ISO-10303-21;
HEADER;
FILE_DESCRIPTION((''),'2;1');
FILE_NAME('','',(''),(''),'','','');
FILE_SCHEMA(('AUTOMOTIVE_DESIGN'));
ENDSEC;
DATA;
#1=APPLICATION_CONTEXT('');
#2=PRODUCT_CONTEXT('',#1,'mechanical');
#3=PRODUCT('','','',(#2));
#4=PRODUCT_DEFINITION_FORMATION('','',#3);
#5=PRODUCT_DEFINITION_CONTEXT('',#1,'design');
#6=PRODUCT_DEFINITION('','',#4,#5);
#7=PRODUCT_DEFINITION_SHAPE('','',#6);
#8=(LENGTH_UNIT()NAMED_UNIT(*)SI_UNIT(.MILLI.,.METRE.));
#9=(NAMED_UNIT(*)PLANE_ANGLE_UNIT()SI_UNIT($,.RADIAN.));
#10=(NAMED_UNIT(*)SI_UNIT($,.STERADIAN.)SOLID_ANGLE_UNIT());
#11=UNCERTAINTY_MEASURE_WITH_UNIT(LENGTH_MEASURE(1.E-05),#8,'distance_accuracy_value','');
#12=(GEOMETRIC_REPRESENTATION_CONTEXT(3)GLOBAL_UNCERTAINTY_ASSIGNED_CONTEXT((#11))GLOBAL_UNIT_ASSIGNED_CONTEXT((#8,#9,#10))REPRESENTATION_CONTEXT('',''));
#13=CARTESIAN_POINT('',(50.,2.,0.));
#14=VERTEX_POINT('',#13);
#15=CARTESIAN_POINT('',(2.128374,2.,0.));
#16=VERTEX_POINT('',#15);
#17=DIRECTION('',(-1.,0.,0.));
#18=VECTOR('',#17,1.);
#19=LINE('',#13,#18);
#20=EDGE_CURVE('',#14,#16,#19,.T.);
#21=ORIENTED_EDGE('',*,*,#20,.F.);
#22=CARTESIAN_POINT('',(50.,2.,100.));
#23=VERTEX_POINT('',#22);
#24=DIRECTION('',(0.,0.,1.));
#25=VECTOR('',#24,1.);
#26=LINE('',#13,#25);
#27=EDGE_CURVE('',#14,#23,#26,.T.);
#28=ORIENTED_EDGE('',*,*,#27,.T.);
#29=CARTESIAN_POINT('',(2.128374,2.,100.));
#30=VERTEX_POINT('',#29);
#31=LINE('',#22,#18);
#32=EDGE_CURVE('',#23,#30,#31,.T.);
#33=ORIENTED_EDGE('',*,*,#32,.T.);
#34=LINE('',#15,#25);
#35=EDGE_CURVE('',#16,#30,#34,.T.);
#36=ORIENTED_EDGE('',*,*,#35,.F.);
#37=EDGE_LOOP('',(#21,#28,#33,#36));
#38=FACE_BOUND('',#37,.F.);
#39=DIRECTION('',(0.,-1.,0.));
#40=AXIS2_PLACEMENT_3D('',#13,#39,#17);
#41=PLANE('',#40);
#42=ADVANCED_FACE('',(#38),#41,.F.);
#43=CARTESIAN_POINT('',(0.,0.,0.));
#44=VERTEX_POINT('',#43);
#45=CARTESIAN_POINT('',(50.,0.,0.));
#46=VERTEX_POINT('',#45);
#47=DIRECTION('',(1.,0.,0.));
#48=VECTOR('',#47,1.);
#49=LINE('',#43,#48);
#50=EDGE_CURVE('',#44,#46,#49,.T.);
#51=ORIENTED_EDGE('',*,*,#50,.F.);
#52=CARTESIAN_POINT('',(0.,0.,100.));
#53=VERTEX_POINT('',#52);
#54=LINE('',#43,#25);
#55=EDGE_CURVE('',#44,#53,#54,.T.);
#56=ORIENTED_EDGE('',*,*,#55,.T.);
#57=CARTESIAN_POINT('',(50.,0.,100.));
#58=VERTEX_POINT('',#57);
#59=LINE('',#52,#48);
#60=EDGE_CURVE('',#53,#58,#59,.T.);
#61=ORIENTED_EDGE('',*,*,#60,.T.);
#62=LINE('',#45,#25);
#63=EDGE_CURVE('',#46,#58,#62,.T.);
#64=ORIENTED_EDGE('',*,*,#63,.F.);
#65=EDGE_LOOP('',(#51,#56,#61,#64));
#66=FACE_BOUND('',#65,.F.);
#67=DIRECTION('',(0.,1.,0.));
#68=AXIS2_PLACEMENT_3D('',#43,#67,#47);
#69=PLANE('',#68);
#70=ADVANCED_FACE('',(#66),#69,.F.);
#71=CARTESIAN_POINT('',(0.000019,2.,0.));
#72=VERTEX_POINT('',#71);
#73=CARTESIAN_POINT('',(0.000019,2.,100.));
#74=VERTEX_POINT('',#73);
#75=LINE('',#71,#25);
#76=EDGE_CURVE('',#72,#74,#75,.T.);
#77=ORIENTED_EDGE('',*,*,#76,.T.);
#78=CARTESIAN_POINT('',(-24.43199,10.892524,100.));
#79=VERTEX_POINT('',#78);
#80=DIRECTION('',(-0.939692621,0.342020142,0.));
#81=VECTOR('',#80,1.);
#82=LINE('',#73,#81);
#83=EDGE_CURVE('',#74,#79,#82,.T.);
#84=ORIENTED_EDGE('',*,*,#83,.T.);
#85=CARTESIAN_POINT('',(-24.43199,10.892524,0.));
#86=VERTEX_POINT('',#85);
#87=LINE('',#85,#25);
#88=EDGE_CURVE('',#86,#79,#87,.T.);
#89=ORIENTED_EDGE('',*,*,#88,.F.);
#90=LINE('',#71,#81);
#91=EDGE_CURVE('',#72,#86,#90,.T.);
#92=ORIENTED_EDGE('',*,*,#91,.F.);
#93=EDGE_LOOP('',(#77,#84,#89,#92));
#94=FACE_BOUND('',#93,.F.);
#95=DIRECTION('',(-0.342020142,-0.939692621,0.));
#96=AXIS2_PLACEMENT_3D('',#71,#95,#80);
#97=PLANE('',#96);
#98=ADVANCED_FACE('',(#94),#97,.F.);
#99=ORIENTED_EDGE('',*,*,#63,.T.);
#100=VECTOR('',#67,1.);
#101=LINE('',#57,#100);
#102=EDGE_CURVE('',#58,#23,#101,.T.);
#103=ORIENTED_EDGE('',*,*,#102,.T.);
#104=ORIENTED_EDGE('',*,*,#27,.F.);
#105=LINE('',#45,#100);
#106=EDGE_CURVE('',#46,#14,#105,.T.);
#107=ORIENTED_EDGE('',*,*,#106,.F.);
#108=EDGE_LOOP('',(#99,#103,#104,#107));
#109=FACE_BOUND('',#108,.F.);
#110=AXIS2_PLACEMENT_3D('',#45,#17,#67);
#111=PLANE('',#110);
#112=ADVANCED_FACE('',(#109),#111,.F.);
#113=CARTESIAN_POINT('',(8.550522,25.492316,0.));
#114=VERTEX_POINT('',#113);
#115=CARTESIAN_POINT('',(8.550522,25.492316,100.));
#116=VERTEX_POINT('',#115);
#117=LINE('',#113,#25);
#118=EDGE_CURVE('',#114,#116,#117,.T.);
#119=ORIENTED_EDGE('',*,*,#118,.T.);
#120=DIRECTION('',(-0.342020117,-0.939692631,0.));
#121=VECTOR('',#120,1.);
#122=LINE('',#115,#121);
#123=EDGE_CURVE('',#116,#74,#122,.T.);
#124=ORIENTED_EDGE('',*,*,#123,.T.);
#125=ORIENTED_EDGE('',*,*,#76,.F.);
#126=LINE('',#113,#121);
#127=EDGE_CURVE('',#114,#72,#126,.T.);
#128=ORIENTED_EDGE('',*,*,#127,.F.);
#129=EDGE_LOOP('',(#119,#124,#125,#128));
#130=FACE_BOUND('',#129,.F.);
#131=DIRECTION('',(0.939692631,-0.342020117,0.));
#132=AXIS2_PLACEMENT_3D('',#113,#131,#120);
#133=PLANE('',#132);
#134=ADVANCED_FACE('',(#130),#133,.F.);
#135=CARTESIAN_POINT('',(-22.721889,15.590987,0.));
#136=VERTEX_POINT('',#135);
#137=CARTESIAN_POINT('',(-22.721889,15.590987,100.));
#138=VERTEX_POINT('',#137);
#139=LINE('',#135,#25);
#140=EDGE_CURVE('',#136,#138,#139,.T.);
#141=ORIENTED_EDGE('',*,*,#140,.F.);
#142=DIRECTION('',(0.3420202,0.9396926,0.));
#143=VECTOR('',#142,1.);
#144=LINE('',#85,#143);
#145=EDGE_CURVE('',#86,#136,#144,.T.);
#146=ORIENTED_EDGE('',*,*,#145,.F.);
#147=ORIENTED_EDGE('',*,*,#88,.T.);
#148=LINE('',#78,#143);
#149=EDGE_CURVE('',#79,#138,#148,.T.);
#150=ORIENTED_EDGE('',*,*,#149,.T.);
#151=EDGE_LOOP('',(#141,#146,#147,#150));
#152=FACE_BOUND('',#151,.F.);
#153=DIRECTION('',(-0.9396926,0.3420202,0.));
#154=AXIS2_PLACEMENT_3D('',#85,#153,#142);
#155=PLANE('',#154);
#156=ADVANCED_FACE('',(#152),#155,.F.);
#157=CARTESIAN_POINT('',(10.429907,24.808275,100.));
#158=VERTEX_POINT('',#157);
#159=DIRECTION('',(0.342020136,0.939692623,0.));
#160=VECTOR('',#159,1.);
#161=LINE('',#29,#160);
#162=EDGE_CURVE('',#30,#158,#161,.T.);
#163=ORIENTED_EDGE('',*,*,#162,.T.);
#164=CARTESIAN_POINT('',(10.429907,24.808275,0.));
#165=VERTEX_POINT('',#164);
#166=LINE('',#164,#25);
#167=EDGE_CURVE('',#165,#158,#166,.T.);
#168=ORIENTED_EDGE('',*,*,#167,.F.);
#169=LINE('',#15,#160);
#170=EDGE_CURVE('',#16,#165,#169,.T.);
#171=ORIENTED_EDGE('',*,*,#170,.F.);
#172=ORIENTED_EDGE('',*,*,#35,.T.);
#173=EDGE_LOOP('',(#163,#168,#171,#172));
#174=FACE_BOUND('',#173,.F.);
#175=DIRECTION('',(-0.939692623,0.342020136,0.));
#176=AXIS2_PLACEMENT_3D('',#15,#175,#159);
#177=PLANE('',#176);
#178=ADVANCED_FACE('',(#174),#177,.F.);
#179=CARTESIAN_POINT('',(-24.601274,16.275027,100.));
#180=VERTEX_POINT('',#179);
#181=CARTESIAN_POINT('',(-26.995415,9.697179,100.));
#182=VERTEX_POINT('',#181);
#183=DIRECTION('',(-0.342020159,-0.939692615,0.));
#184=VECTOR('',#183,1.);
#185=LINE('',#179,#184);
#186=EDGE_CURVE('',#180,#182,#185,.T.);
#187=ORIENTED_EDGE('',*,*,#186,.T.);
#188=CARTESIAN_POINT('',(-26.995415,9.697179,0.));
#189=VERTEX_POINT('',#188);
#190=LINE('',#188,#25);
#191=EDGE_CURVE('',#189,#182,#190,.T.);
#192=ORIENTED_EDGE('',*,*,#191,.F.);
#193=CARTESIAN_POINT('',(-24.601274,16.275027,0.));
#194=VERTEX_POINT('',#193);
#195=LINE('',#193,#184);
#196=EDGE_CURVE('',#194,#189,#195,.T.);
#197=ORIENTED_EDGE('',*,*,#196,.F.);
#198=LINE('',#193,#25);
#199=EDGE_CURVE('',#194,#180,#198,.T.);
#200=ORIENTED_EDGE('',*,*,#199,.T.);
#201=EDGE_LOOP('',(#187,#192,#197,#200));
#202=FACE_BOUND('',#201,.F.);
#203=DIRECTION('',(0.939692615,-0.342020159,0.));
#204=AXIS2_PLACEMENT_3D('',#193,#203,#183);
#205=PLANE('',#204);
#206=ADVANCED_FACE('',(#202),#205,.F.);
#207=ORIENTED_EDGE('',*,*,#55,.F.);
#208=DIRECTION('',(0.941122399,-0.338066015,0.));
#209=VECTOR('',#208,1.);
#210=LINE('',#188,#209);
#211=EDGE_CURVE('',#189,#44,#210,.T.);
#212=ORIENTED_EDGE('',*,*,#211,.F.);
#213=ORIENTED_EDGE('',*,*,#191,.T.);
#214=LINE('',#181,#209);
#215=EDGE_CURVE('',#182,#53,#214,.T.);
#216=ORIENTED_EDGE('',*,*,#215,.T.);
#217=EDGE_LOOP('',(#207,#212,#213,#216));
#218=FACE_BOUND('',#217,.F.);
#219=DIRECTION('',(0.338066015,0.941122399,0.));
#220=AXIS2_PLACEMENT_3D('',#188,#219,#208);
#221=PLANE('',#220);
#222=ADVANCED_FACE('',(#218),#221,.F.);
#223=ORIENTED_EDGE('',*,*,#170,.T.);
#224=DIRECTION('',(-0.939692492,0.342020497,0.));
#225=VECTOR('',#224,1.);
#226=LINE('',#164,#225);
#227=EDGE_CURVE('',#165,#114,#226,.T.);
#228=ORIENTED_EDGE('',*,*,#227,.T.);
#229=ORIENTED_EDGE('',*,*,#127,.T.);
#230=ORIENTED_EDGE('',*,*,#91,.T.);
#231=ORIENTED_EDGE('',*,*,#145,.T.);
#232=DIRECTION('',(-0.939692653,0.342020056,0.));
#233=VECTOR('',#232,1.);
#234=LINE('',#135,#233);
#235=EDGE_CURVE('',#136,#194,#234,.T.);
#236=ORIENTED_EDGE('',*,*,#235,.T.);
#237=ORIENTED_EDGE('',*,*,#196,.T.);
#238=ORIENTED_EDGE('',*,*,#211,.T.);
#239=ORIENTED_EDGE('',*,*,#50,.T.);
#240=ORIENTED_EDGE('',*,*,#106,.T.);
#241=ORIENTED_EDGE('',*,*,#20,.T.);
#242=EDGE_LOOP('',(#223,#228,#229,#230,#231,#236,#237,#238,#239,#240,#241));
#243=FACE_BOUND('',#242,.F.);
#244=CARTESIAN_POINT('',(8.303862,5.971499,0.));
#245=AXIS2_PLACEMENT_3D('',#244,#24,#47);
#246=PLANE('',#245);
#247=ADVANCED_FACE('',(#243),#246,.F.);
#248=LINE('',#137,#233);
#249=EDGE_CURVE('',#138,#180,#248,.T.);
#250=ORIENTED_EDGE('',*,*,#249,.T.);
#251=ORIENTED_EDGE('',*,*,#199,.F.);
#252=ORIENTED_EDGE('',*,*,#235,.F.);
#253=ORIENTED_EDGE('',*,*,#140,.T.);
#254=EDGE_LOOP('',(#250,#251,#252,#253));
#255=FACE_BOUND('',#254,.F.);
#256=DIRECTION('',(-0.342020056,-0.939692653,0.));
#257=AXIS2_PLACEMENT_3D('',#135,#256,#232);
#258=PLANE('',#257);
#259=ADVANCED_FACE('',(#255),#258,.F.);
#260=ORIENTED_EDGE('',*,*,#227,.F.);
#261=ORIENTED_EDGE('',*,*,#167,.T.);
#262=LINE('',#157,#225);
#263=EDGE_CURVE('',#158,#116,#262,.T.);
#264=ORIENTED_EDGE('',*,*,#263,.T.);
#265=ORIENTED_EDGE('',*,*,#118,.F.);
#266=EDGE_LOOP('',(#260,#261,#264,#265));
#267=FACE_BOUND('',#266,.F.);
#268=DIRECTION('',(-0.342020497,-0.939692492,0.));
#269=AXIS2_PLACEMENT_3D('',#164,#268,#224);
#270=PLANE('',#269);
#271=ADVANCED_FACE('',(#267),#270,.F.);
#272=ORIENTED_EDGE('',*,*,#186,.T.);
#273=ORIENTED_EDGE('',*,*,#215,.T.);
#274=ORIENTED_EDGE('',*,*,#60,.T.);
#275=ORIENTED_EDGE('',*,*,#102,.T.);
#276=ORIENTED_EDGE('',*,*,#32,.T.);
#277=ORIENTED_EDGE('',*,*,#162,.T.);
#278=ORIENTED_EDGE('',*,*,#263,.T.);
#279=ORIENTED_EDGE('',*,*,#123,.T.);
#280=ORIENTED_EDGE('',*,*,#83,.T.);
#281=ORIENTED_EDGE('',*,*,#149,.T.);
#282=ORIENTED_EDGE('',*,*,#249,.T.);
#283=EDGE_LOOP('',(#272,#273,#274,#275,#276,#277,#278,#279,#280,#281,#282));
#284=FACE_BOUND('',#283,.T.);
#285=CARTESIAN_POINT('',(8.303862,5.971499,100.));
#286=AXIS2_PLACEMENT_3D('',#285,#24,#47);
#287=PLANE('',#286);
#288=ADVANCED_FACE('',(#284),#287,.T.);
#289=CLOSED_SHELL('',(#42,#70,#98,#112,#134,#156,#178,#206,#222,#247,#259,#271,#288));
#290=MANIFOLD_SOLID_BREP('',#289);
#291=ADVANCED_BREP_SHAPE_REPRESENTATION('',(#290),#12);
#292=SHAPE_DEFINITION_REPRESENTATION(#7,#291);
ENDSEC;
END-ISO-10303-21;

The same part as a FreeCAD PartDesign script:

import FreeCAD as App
import Part
import Sketcher

V = App.Vector
Q = App.Units.Quantity


def add_polygon(sketch, points):
    """Adds a closed chain of lines whose ends are joined by coincident constraints."""
    first, n = sketch.GeometryCount, len(points)
    for a, b in zip(points, points[1:] + points[:1]):
        sketch.addGeometry(Part.LineSegment(App.Vector(*a, 0), App.Vector(*b, 0)), False)
    for i in range(n):
        sketch.addConstraint(Sketcher.Constraint("Coincident", first + i, 2, first + (i + 1) % n, 1))

doc = App.newDocument("Part")
body = doc.addObject("PartDesign::Body", "Body")

# Sketch on XY plane
sketch1 = body.newObject("Sketcher::SketchObject", "Sketch")
sketch1.AttachmentSupport = (doc.getObject("XY_Plane"), [""])
sketch1.MapMode = "FlatFace"
add_polygon(sketch1, [(0, 0), (50, 0), (50, 2), (2.1, 2), (10.4, 24.8), (8.6, 25.5), (0, 2), (-24.4, 10.9), (-22.7, 15.6), (-24.6, 16.3), (-27, 9.7)])  # lines 0-10
sketch1.addConstraint([
    Sketcher.Constraint("Horizontal", 0),
    Sketcher.Constraint("Vertical", 1),
    Sketcher.Constraint("Horizontal", 2),
    Sketcher.Constraint("Coincident", 10, 2, -1, 1),
    Sketcher.Constraint("Perpendicular", 3, 4),
    Sketcher.Constraint("Perpendicular", 4, 5),
    Sketcher.Constraint("Perpendicular", 5, 6),
    Sketcher.Constraint("Perpendicular", 6, 7),
    Sketcher.Constraint("Perpendicular", 7, 8),
    Sketcher.Constraint("Perpendicular", 8, 9),
    Sketcher.Constraint("Horizontal", 2, 2, 5, 2),
    Sketcher.Constraint("Equal", 4, 8),
    Sketcher.Constraint("DistanceX", 0, 1, 0, 2, 50.0),
    Sketcher.Constraint("DistanceY", 1, 1, 1, 2, 2.0),
    Sketcher.Constraint("Angle", 3, Q("70 deg")),
    Sketcher.Constraint("Distance", 4, 2.0),
    Sketcher.Constraint("Distance", 5, 25.0),
    Sketcher.Constraint("Distance", 6, 26.000001),
    Sketcher.Constraint("Distance", 7, 5.0),
    Sketcher.Constraint("Distance", 9, 7.0),
    Sketcher.Constraint("DistanceX", 2, 2, 2, 1, 47.871626),
])
pad1 = body.newObject("PartDesign::Pad", "Pad")
pad1.Profile = sketch1
pad1.Length = 100

doc.recompute()
